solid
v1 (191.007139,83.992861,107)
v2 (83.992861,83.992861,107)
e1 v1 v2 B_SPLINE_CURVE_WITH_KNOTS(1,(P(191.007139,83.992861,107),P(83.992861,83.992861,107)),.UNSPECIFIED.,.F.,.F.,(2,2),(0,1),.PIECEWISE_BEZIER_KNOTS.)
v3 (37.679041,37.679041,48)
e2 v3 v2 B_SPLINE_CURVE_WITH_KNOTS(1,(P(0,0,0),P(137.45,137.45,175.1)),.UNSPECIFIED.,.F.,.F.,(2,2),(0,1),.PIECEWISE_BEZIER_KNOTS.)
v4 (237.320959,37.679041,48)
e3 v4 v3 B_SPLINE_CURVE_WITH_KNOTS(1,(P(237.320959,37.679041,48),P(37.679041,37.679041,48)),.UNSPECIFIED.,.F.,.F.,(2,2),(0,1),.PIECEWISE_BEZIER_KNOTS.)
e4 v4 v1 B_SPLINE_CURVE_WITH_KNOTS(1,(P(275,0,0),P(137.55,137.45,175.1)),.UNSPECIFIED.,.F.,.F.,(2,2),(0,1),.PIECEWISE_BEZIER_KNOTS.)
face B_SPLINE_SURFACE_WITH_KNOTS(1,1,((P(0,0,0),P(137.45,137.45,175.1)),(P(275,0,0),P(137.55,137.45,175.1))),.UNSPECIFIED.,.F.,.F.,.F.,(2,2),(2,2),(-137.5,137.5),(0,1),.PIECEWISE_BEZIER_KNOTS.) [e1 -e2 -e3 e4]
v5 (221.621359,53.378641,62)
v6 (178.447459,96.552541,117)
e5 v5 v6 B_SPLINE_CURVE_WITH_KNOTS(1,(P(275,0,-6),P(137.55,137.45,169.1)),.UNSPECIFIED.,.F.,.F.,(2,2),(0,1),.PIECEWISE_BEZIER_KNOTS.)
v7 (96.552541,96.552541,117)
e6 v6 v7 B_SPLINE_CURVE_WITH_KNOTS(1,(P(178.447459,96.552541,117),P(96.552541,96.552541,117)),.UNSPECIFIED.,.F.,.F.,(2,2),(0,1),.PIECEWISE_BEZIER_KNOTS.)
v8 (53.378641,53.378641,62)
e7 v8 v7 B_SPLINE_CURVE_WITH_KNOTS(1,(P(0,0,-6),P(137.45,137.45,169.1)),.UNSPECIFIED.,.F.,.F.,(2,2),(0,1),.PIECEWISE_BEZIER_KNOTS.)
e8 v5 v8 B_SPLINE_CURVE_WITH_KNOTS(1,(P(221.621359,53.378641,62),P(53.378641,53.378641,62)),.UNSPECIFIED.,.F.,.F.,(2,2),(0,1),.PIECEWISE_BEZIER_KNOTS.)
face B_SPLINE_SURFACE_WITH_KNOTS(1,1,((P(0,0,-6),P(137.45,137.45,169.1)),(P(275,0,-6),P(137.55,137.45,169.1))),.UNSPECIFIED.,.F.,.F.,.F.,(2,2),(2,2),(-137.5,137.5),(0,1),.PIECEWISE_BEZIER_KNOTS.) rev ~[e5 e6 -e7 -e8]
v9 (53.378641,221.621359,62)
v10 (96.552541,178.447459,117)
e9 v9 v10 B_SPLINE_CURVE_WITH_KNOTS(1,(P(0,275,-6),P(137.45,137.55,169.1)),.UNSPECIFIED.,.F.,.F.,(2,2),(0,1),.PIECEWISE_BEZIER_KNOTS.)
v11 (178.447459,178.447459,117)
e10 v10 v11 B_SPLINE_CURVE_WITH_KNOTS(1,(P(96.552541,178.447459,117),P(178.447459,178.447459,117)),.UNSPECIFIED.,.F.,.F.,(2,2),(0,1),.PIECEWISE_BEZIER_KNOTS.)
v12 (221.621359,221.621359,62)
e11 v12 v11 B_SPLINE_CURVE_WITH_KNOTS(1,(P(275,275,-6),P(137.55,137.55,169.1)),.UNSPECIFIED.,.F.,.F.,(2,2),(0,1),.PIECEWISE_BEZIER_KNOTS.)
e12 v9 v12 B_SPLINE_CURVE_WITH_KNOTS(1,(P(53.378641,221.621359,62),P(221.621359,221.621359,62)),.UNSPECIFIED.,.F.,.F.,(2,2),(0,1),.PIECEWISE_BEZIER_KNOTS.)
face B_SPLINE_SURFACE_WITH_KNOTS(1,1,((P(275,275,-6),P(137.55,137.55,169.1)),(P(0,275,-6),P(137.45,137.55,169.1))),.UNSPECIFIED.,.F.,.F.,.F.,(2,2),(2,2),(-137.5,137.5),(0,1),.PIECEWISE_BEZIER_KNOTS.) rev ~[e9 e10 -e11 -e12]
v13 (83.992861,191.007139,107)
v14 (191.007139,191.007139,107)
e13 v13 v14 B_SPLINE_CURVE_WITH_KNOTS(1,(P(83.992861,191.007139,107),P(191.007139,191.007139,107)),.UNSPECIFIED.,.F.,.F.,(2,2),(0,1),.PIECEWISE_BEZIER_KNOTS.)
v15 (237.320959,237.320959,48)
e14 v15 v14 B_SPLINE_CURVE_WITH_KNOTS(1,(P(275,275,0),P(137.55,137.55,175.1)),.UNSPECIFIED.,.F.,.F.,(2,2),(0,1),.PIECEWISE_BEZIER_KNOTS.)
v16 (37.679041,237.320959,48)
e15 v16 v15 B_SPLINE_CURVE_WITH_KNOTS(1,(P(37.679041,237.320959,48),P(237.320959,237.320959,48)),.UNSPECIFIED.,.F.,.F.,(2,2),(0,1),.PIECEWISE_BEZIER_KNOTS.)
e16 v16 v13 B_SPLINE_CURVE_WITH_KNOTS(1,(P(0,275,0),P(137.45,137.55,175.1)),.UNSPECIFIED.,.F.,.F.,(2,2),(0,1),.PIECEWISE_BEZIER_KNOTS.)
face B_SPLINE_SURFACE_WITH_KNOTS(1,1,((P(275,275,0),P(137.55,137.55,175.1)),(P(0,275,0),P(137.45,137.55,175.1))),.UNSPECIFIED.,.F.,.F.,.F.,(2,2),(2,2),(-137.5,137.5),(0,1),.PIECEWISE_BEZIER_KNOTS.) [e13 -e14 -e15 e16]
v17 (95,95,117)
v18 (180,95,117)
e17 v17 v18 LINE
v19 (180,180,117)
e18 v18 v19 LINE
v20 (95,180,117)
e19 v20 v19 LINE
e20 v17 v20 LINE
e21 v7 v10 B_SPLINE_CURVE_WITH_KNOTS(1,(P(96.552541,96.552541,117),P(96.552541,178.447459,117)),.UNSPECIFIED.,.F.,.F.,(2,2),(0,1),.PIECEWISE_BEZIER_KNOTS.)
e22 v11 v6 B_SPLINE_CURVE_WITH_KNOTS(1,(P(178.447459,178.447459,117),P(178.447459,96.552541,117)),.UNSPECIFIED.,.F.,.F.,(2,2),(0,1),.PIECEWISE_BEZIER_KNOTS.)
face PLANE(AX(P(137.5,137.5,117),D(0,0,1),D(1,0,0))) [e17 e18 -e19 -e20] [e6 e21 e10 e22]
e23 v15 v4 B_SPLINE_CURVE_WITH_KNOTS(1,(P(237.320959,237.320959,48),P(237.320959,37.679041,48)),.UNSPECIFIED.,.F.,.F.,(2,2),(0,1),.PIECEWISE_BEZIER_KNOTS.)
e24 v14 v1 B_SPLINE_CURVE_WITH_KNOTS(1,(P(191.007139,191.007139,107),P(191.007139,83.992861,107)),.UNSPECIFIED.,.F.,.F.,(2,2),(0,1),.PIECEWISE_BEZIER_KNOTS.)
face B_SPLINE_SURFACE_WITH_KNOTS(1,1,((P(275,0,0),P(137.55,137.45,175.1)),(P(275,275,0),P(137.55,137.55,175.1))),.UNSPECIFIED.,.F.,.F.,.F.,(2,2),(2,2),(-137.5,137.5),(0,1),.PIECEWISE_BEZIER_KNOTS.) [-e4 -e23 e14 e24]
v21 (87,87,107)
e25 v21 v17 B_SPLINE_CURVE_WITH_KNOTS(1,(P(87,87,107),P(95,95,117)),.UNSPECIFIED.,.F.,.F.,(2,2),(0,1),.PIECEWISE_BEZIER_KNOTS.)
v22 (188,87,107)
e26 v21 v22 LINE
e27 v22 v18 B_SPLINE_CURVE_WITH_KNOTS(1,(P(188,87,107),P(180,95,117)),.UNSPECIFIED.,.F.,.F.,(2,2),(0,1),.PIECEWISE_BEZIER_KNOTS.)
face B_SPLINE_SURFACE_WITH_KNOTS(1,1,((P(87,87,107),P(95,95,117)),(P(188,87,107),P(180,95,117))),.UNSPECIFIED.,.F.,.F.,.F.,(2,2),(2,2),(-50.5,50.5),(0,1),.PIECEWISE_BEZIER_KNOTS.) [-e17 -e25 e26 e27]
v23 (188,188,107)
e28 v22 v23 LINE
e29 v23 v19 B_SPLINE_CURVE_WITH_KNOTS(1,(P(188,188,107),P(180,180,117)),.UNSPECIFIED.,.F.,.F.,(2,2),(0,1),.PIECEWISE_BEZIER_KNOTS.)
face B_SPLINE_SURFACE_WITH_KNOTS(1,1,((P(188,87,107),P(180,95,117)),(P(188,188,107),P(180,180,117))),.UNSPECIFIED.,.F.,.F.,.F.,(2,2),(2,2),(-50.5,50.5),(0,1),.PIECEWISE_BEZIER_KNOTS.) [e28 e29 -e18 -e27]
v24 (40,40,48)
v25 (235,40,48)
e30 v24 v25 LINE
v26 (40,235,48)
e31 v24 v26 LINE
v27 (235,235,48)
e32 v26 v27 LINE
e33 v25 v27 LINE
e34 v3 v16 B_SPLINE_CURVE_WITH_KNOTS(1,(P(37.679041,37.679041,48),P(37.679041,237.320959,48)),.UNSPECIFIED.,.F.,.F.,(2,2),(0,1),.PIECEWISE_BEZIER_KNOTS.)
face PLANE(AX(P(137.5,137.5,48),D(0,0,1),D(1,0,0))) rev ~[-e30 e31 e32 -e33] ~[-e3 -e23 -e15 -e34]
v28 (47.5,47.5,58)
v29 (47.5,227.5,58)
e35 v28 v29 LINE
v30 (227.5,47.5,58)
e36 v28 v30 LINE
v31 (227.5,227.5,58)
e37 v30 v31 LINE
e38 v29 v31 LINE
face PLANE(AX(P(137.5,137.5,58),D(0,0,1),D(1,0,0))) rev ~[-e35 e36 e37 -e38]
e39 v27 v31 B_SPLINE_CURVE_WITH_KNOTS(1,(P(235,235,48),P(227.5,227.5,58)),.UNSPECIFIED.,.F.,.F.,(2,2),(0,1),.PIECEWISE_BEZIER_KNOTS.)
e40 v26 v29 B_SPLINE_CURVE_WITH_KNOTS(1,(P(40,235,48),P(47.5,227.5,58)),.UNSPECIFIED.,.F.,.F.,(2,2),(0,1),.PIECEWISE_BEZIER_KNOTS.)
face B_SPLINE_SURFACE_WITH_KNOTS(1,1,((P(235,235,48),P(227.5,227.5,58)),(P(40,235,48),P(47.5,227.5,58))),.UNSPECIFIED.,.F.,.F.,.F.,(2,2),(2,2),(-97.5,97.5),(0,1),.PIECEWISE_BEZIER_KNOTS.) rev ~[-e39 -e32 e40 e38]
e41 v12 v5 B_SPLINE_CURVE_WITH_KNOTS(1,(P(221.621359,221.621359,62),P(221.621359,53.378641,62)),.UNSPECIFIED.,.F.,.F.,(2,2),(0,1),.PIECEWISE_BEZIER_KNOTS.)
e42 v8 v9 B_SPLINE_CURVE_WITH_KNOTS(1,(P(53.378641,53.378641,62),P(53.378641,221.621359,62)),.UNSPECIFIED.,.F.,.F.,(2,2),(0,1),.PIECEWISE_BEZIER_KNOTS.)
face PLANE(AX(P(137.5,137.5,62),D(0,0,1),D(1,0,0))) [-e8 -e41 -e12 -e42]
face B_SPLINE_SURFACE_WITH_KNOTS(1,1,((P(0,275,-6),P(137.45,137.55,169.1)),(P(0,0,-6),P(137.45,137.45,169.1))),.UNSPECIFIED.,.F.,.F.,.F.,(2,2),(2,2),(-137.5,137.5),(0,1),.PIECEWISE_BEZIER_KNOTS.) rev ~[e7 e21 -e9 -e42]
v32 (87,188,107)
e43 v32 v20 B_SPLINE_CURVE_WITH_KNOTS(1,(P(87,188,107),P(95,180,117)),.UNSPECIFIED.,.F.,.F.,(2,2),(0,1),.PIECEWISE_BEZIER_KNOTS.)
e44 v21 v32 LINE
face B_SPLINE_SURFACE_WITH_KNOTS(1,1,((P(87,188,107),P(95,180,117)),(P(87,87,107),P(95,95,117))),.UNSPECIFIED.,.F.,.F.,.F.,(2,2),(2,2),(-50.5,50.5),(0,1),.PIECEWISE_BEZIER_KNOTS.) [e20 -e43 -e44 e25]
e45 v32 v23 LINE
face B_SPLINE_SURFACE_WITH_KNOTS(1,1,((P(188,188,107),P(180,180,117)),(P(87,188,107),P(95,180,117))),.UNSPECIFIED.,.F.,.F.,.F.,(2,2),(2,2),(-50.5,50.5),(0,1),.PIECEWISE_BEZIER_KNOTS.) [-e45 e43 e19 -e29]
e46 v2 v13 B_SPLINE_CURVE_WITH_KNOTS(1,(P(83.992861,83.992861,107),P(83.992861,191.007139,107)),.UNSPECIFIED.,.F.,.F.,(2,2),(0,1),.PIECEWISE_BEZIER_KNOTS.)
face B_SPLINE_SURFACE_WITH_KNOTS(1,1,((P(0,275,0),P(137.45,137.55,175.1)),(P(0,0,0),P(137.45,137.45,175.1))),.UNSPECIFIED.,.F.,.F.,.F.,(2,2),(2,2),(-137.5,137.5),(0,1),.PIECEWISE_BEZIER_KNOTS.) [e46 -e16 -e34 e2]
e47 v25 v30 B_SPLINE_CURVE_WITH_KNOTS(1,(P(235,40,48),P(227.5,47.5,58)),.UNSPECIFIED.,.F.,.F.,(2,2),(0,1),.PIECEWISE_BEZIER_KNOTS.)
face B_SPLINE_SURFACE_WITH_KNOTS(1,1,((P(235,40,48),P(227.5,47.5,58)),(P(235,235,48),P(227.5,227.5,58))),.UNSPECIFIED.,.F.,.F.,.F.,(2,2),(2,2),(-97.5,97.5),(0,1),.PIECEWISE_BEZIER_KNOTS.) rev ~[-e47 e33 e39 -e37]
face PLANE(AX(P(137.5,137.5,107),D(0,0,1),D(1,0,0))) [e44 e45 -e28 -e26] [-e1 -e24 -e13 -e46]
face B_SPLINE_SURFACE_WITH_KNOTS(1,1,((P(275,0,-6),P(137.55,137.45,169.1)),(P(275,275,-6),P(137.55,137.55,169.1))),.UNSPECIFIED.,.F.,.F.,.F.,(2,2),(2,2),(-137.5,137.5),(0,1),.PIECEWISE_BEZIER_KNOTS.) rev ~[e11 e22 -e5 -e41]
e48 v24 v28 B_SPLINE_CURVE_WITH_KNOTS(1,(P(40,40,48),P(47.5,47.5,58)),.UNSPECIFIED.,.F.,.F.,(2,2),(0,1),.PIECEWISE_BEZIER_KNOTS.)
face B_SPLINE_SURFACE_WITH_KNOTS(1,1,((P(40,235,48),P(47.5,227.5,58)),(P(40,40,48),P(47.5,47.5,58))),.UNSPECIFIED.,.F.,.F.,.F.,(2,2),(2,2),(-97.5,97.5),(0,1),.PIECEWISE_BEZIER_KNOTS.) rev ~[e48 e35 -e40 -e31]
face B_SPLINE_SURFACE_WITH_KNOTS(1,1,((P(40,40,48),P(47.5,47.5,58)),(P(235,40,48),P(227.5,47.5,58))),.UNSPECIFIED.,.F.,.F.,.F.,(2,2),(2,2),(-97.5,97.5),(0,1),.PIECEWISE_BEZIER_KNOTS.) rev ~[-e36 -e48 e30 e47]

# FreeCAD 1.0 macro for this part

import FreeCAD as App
import Part
import Sketcher

doc = App.newDocument("Part")
params = doc.addObject("Spreadsheet::Sheet", "Params")
for row, (alias, value) in enumerate([
    ("sketch1_width", "275 mm"),
    ("pad1_length", "59 mm"),
    ("sketch2_width", "101 mm"),
    ("sketch3_width", "85 mm"),
    ("sketch4_width", "275 mm"),
    ("pad2_length", "52 mm"),
    ("sketch5_width", "275 mm"),
    ("sketch6_width", "0.1 mm"),
    ("sketch7_width", "275 mm"),
    ("pad3_length", "47 mm"),
    ("sketch8_width", "195 mm"),
    ("sketch9_width", "180 mm"),
    ("sketch10_width", "275 mm"),
    ("pad4_length", "52 mm"),
    ("sketch11_width", "275 mm"),
    ("sketch12_width", "0.1 mm"),
    ("sketch13_width", "275 mm"),
    ("sketch14_width", "0.1 mm"),
    ("sketch15_width", "275 mm"),
    ("pad5_length", "57 mm"),
    ("sketch16_width", "275 mm"),
    ("pad6_length", "55 mm"),
    ("sketch17_width", "275 mm"),
    ("sketch18_width", "0.1 mm"),
    ("sketch19_width", "275 mm"),
    ("sketch20_width", "0.1 mm"),
    ("sketch21_width", "275 mm"),
    ("pad7_length", "70 mm"),
], start=1):
    params.set(f"A{row}", alias)
    params.set(f"B{row}", "=" + value)
    params.setAlias(f"B{row}", alias)

body = doc.addObject("PartDesign::Body", "Body")

# Sketch on XY plane
sketch1 = doc.addObject("Sketcher::SketchObject", "Sketch")
body.addObject(sketch1)
sketch1.AttachmentSupport = (doc.XY_Plane, [""])
sketch1.MapMode = "FlatFace"
sketch1.AttachmentOffset = App.Placement(App.Vector(0, 0, 48), App.Rotation())
sketch1.addGeometry([
    Part.LineSegment(App.Vector(0, 275, 0), App.Vector(0, 0, 0)),
    Part.LineSegment(App.Vector(0, 0, 0), App.Vector(275, 0, 0)),
    Part.LineSegment(App.Vector(275, 0, 0), App.Vector(275, 275, 0)),
    Part.LineSegment(App.Vector(275, 275, 0), App.Vector(0, 275, 0)),
], False)
sketch1.addConstraint([
    Sketcher.Constraint("Coincident", 0, 2, 1, 1),
    Sketcher.Constraint("Coincident", 1, 2, 2, 1),
    Sketcher.Constraint("Coincident", 2, 2, 3, 1),
    Sketcher.Constraint("Coincident", 3, 2, 0, 1),
    Sketcher.Constraint("Vertical", 0),
    Sketcher.Constraint("Horizontal", 1),
    Sketcher.Constraint("Vertical", 2),
    Sketcher.Constraint("Horizontal", 3),
    Sketcher.Constraint("Coincident", 0, 2, -1, 1),
    Sketcher.Constraint("Equal", 3, 0),
    Sketcher.Constraint("DistanceX", 1, 1, 1, 2, 275.0),
])
sketch1.setExpression("Constraints[10]", "Params.sketch1_width")
pad1 = doc.addObject("PartDesign::Pad", "Pad")
body.addObject(pad1)
pad1.Profile = sketch1
pad1.setExpression("Length", "Params.pad1_length")
body2 = doc.addObject("PartDesign::Body", "Body001")

# Sketch on XY plane
sketch2 = doc.addObject("Sketcher::SketchObject", "Sketch001")
body2.addObject(sketch2)
sketch2.AttachmentSupport = (doc.getObject("XY_Plane001"), [""])
sketch2.MapMode = "FlatFace"
sketch2.AttachmentOffset = App.Placement(App.Vector(0, 0, 107), App.Rotation())
sketch2.addGeometry([
    Part.LineSegment(App.Vector(87, 188, 0), App.Vector(87, 87, 0)),
    Part.LineSegment(App.Vector(87, 87, 0), App.Vector(188, 87, 0)),
    Part.LineSegment(App.Vector(188, 87, 0), App.Vector(188, 188, 0)),
    Part.LineSegment(App.Vector(188, 188, 0), App.Vector(87, 188, 0)),
], False)
sketch2.addConstraint([
    Sketcher.Constraint("Coincident", 0, 2, 1, 1),
    Sketcher.Constraint("Coincident", 1, 2, 2, 1),
    Sketcher.Constraint("Coincident", 2, 2, 3, 1),
    Sketcher.Constraint("Coincident", 3, 2, 0, 1),
    Sketcher.Constraint("Vertical", 0),
    Sketcher.Constraint("Horizontal", 1),
    Sketcher.Constraint("Vertical", 2),
    Sketcher.Constraint("Horizontal", 3),
    Sketcher.Constraint("Equal", 3, 0),
    Sketcher.Constraint("DistanceX", 1, 1, 1, 2, 101.0),
    Sketcher.Constraint("DistanceX", -1, 1, 0, 2, 87.0),
    Sketcher.Constraint("DistanceY", -1, 1, 0, 2, 87.0),
])
sketch2.setExpression("Constraints[9]", "Params.sketch2_width")

# Sketch on XY plane
sketch3 = doc.addObject("Sketcher::SketchObject", "Sketch002")
body2.addObject(sketch3)
sketch3.AttachmentSupport = (doc.getObject("XY_Plane001"), [""])
sketch3.MapMode = "FlatFace"
sketch3.AttachmentOffset = App.Placement(App.Vector(0, 0, 117), App.Rotation())
sketch3.addGeometry([
    Part.LineSegment(App.Vector(95, 180, 0), App.Vector(95, 95, 0)),
    Part.LineSegment(App.Vector(95, 95, 0), App.Vector(180, 95, 0)),
    Part.LineSegment(App.Vector(180, 95, 0), App.Vector(180, 180, 0)),
    Part.LineSegment(App.Vector(180, 180, 0), App.Vector(95, 180, 0)),
], False)
sketch3.addConstraint([
    Sketcher.Constraint("Coincident", 0, 2, 1, 1),
    Sketcher.Constraint("Coincident", 1, 2, 2, 1),
    Sketcher.Constraint("Coincident", 2, 2, 3, 1),
    Sketcher.Constraint("Coincident", 3, 2, 0, 1),
    Sketcher.Constraint("Vertical", 0),
    Sketcher.Constraint("Horizontal", 1),
    Sketcher.Constraint("Vertical", 2),
    Sketcher.Constraint("Horizontal", 3),
    Sketcher.Constraint("Equal", 3, 0),
    Sketcher.Constraint("DistanceX", 1, 1, 1, 2, 85.0),
    Sketcher.Constraint("DistanceX", -1, 1, 0, 2, 95.0),
    Sketcher.Constraint("DistanceY", -1, 1, 0, 2, 95.0),
])
sketch3.setExpression("Constraints[9]", "Params.sketch3_width")

additiveloft = doc.addObject("PartDesign::AdditiveLoft", "AdditiveLoft")
body2.addObject(additiveloft)
additiveloft.Profile = sketch2
additiveloft.Sections = [sketch3]
doc.recompute()

boolean = doc.addObject("PartDesign::Boolean", "Boolean")
body2.addObject(boolean)
boolean.Type = "Fuse"
boolean.addObjects([body])
body3 = doc.addObject("PartDesign::Body", "Body002")

# Sketch on XY plane
sketch4 = doc.addObject("Sketcher::SketchObject", "Sketch003")
body3.addObject(sketch4)
sketch4.AttachmentSupport = (doc.getObject("XY_Plane002"), [""])
sketch4.MapMode = "FlatFace"
sketch4.AttachmentOffset = App.Placement(App.Vector(0, 0, 5), App.Rotation())
sketch4.addGeometry([
    Part.LineSegment(App.Vector(0, 275, 0), App.Vector(0, 0, 0)),
    Part.LineSegment(App.Vector(0, 0, 0), App.Vector(275, 0, 0)),
    Part.LineSegment(App.Vector(275, 0, 0), App.Vector(275, 275, 0)),
    Part.LineSegment(App.Vector(275, 275, 0), App.Vector(0, 275, 0)),
], False)
sketch4.addConstraint([
    Sketcher.Constraint("Coincident", 0, 2, 1, 1),
    Sketcher.Constraint("Coincident", 1, 2, 2, 1),
    Sketcher.Constraint("Coincident", 2, 2, 3, 1),
    Sketcher.Constraint("Coincident", 3, 2, 0, 1),
    Sketcher.Constraint("Vertical", 0),
    Sketcher.Constraint("Horizontal", 1),
    Sketcher.Constraint("Vertical", 2),
    Sketcher.Constraint("Horizontal", 3),
    Sketcher.Constraint("Coincident", 0, 2, -1, 1),
    Sketcher.Constraint("Equal", 3, 0),
    Sketcher.Constraint("DistanceX", 1, 1, 1, 2, 275.0),
])
sketch4.setExpression("Constraints[10]", "Params.sketch4_width")
pad2 = doc.addObject("PartDesign::Pad", "Pad001")
body3.addObject(pad2)
pad2.Profile = sketch4
pad2.setExpression("Length", "Params.pad2_length")
body4 = doc.addObject("PartDesign::Body", "Body003")

# Sketch on XY plane
sketch5 = doc.addObject("Sketcher::SketchObject", "Sketch004")
body4.addObject(sketch5)
sketch5.AttachmentSupport = (doc.getObject("XY_Plane003"), [""])
sketch5.MapMode = "FlatFace"
sketch5.addGeometry([
    Part.LineSegment(App.Vector(0, 275, 0), App.Vector(0, 0, 0)),
    Part.LineSegment(App.Vector(0, 0, 0), App.Vector(275, 0, 0)),
    Part.LineSegment(App.Vector(275, 0, 0), App.Vector(275, 275, 0)),
    Part.LineSegment(App.Vector(275, 275, 0), App.Vector(0, 275, 0)),
], False)
sketch5.addConstraint([
    Sketcher.Constraint("Coincident", 0, 2, 1, 1),
    Sketcher.Constraint("Coincident", 1, 2, 2, 1),
    Sketcher.Constraint("Coincident", 2, 2, 3, 1),
    Sketcher.Constraint("Coincident", 3, 2, 0, 1),
    Sketcher.Constraint("Vertical", 0),
    Sketcher.Constraint("Horizontal", 1),
    Sketcher.Constraint("Vertical", 2),
    Sketcher.Constraint("Horizontal", 3),
    Sketcher.Constraint("Coincident", 0, 2, -1, 1),
    Sketcher.Constraint("Equal", 3, 0),
    Sketcher.Constraint("DistanceX", 1, 1, 1, 2, 275.0),
])
sketch5.setExpression("Constraints[10]", "Params.sketch5_width")

# Sketch on XY plane
sketch6 = doc.addObject("Sketcher::SketchObject", "Sketch005")
body4.addObject(sketch6)
sketch6.AttachmentSupport = (doc.getObject("XY_Plane003"), [""])
sketch6.MapMode = "FlatFace"
sketch6.AttachmentOffset = App.Placement(App.Vector(0, 0, 175.1), App.Rotation())
sketch6.addGeometry([
    Part.LineSegment(App.Vector(137.45, 137.55, 0), App.Vector(137.45, 137.45, 0)),
    Part.LineSegment(App.Vector(137.45, 137.45, 0), App.Vector(137.55, 137.45, 0)),
    Part.LineSegment(App.Vector(137.55, 137.45, 0), App.Vector(137.55, 137.55, 0)),
    Part.LineSegment(App.Vector(137.55, 137.55, 0), App.Vector(137.45, 137.55, 0)),
], False)
sketch6.addConstraint([
    Sketcher.Constraint("Coincident", 0, 2, 1, 1),
    Sketcher.Constraint("Coincident", 1, 2, 2, 1),
    Sketcher.Constraint("Coincident", 2, 2, 3, 1),
    Sketcher.Constraint("Coincident", 3, 2, 0, 1),
    Sketcher.Constraint("Vertical", 0),
    Sketcher.Constraint("Horizontal", 1),
    Sketcher.Constraint("Vertical", 2),
    Sketcher.Constraint("Horizontal", 3),
    Sketcher.Constraint("Equal", 3, 0),
    Sketcher.Constraint("DistanceX", 1, 1, 1, 2, 0.1),
    Sketcher.Constraint("DistanceX", -1, 1, 0, 2, 137.45),
    Sketcher.Constraint("DistanceY", -1, 1, 0, 2, 137.45),
])
sketch6.setExpression("Constraints[9]", "Params.sketch6_width")

additiveloft2 = doc.addObject("PartDesign::AdditiveLoft", "AdditiveLoft001")
body4.addObject(additiveloft2)
additiveloft2.Profile = sketch5
additiveloft2.Sections = [sketch6]
body5 = doc.addObject("PartDesign::Body", "Body004")
doc.recompute()

body4.Placement = App.Placement(App.Vector(0, 0, -6), App.Rotation(App.Vector(0, 0, 1), 0))
boolean2 = doc.addObject("PartDesign::Boolean", "Boolean001")
body5.addObject(boolean2)
boolean2.Type = "Fuse"
boolean2.addObjects([body4])
doc.recompute()

boolean3 = doc.addObject("PartDesign::Boolean", "Boolean002")
body5.addObject(boolean3)
boolean3.Type = "Common"
boolean3.addObjects([body3])
body6 = doc.addObject("PartDesign::Body", "Body005")

# Sketch on XY plane
sketch7 = doc.addObject("Sketcher::SketchObject", "Sketch006")
body6.addObject(sketch7)
sketch7.AttachmentSupport = (doc.getObject("XY_Plane005"), [""])
sketch7.MapMode = "FlatFace"
sketch7.addGeometry([
    Part.LineSegment(App.Vector(0, 275, 0), App.Vector(0, 0, 0)),
    Part.LineSegment(App.Vector(0, 0, 0), App.Vector(275, 0, 0)),
    Part.LineSegment(App.Vector(275, 0, 0), App.Vector(275, 275, 0)),
    Part.LineSegment(App.Vector(275, 275, 0), App.Vector(0, 275, 0)),
], False)
sketch7.addConstraint([
    Sketcher.Constraint("Coincident", 0, 2, 1, 1),
    Sketcher.Constraint("Coincident", 1, 2, 2, 1),
    Sketcher.Constraint("Coincident", 2, 2, 3, 1),
    Sketcher.Constraint("Coincident", 3, 2, 0, 1),
    Sketcher.Constraint("Vertical", 0),
    Sketcher.Constraint("Horizontal", 1),
    Sketcher.Constraint("Vertical", 2),
    Sketcher.Constraint("Horizontal", 3),
    Sketcher.Constraint("Coincident", 0, 2, -1, 1),
    Sketcher.Constraint("Equal", 3, 0),
    Sketcher.Constraint("DistanceX", 1, 1, 1, 2, 275.0),
])
sketch7.setExpression("Constraints[10]", "Params.sketch7_width")
pad3 = doc.addObject("PartDesign::Pad", "Pad002")
body6.addObject(pad3)
pad3.Profile = sketch7
pad3.setExpression("Length", "Params.pad3_length")
body7 = doc.addObject("PartDesign::Body", "Body006")

# Sketch on XY plane
sketch8 = doc.addObject("Sketcher::SketchObject", "Sketch007")
body7.addObject(sketch8)
sketch8.AttachmentSupport = (doc.getObject("XY_Plane006"), [""])
sketch8.MapMode = "FlatFace"
sketch8.AttachmentOffset = App.Placement(App.Vector(0, 0, 47), App.Rotation())
sketch8.addGeometry([
    Part.LineSegment(App.Vector(40, 235, 0), App.Vector(40, 40, 0)),
    Part.LineSegment(App.Vector(40, 40, 0), App.Vector(235, 40, 0)),
    Part.LineSegment(App.Vector(235, 40, 0), App.Vector(235, 235, 0)),
    Part.LineSegment(App.Vector(235, 235, 0), App.Vector(40, 235, 0)),
], False)
sketch8.addConstraint([
    Sketcher.Constraint("Coincident", 0, 2, 1, 1),
    Sketcher.Constraint("Coincident", 1, 2, 2, 1),
    Sketcher.Constraint("Coincident", 2, 2, 3, 1),
    Sketcher.Constraint("Coincident", 3, 2, 0, 1),
    Sketcher.Constraint("Vertical", 0),
    Sketcher.Constraint("Horizontal", 1),
    Sketcher.Constraint("Vertical", 2),
    Sketcher.Constraint("Horizontal", 3),
    Sketcher.Constraint("Equal", 3, 0),
    Sketcher.Constraint("DistanceX", 1, 1, 1, 2, 195.0),
    Sketcher.Constraint("DistanceX", -1, 1, 0, 2, 40.0),
    Sketcher.Constraint("DistanceY", -1, 1, 0, 2, 40.0),
])
sketch8.setExpression("Constraints[9]", "Params.sketch8_width")

# Sketch on XY plane
sketch9 = doc.addObject("Sketcher::SketchObject", "Sketch008")
body7.addObject(sketch9)
sketch9.AttachmentSupport = (doc.getObject("XY_Plane006"), [""])
sketch9.MapMode = "FlatFace"
sketch9.AttachmentOffset = App.Placement(App.Vector(0, 0, 57), App.Rotation())
sketch9.addGeometry([
    Part.LineSegment(App.Vector(47.5, 227.5, 0), App.Vector(47.5, 47.5, 0)),
    Part.LineSegment(App.Vector(47.5, 47.5, 0), App.Vector(227.5, 47.5, 0)),
    Part.LineSegment(App.Vector(227.5, 47.5, 0), App.Vector(227.5, 227.5, 0)),
    Part.LineSegment(App.Vector(227.5, 227.5, 0), App.Vector(47.5, 227.5, 0)),
], False)
sketch9.addConstraint([
    Sketcher.Constraint("Coincident", 0, 2, 1, 1),
    Sketcher.Constraint("Coincident", 1, 2, 2, 1),
    Sketcher.Constraint("Coincident", 2, 2, 3, 1),
    Sketcher.Constraint("Coincident", 3, 2, 0, 1),
    Sketcher.Constraint("Vertical", 0),
    Sketcher.Constraint("Horizontal", 1),
    Sketcher.Constraint("Vertical", 2),
    Sketcher.Constraint("Horizontal", 3),
    Sketcher.Constraint("Equal", 3, 0),
    Sketcher.Constraint("DistanceX", 1, 1, 1, 2, 180.0),
    Sketcher.Constraint("DistanceX", -1, 1, 0, 2, 47.5),
    Sketcher.Constraint("DistanceY", -1, 1, 0, 2, 47.5),
])
sketch9.setExpression("Constraints[9]", "Params.sketch9_width")

additiveloft3 = doc.addObject("PartDesign::AdditiveLoft", "AdditiveLoft002")
body7.addObject(additiveloft3)
additiveloft3.Profile = sketch8
additiveloft3.Sections = [sketch9]
doc.recompute()

boolean4 = doc.addObject("PartDesign::Boolean", "Boolean003")
body7.addObject(boolean4)
boolean4.Type = "Fuse"
boolean4.addObjects([body6])
body8 = doc.addObject("PartDesign::Body", "Body007")

# Sketch on XY plane
sketch10 = doc.addObject("Sketcher::SketchObject", "Sketch009")
body8.addObject(sketch10)
sketch10.AttachmentSupport = (doc.getObject("XY_Plane007"), [""])
sketch10.MapMode = "FlatFace"
sketch10.AttachmentOffset = App.Placement(App.Vector(0, 0, 5), App.Rotation())
sketch10.addGeometry([
    Part.LineSegment(App.Vector(0, 275, 0), App.Vector(0, 0, 0)),
    Part.LineSegment(App.Vector(0, 0, 0), App.Vector(275, 0, 0)),
    Part.LineSegment(App.Vector(275, 0, 0), App.Vector(275, 275, 0)),
    Part.LineSegment(App.Vector(275, 275, 0), App.Vector(0, 275, 0)),
], False)
sketch10.addConstraint([
    Sketcher.Constraint("Coincident", 0, 2, 1, 1),
    Sketcher.Constraint("Coincident", 1, 2, 2, 1),
    Sketcher.Constraint("Coincident", 2, 2, 3, 1),
    Sketcher.Constraint("Coincident", 3, 2, 0, 1),
    Sketcher.Constraint("Vertical", 0),
    Sketcher.Constraint("Horizontal", 1),
    Sketcher.Constraint("Vertical", 2),
    Sketcher.Constraint("Horizontal", 3),
    Sketcher.Constraint("Coincident", 0, 2, -1, 1),
    Sketcher.Constraint("Equal", 3, 0),
    Sketcher.Constraint("DistanceX", 1, 1, 1, 2, 275.0),
])
sketch10.setExpression("Constraints[10]", "Params.sketch10_width")
pad4 = doc.addObject("PartDesign::Pad", "Pad003")
body8.addObject(pad4)
pad4.Profile = sketch10
pad4.setExpression("Length", "Params.pad4_length")
body9 = doc.addObject("PartDesign::Body", "Body008")

# Sketch on XY plane
sketch11 = doc.addObject("Sketcher::SketchObject", "Sketch010")
body9.addObject(sketch11)
sketch11.AttachmentSupport = (doc.getObject("XY_Plane008"), [""])
sketch11.MapMode = "FlatFace"
sketch11.addGeometry([
    Part.LineSegment(App.Vector(0, 275, 0), App.Vector(0, 0, 0)),
    Part.LineSegment(App.Vector(0, 0, 0), App.Vector(275, 0, 0)),
    Part.LineSegment(App.Vector(275, 0, 0), App.Vector(275, 275, 0)),
    Part.LineSegment(App.Vector(275, 275, 0), App.Vector(0, 275, 0)),
], False)
sketch11.addConstraint([
    Sketcher.Constraint("Coincident", 0, 2, 1, 1),
    Sketcher.Constraint("Coincident", 1, 2, 2, 1),
    Sketcher.Constraint("Coincident", 2, 2, 3, 1),
    Sketcher.Constraint("Coincident", 3, 2, 0, 1),
    Sketcher.Constraint("Vertical", 0),
    Sketcher.Constraint("Horizontal", 1),
    Sketcher.Constraint("Vertical", 2),
    Sketcher.Constraint("Horizontal", 3),
    Sketcher.Constraint("Coincident", 0, 2, -1, 1),
    Sketcher.Constraint("Equal", 3, 0),
    Sketcher.Constraint("DistanceX", 1, 1, 1, 2, 275.0),
])
sketch11.setExpression("Constraints[10]", "Params.sketch11_width")

# Sketch on XY plane
sketch12 = doc.addObject("Sketcher::SketchObject", "Sketch011")
body9.addObject(sketch12)
sketch12.AttachmentSupport = (doc.getObject("XY_Plane008"), [""])
sketch12.MapMode = "FlatFace"
sketch12.AttachmentOffset = App.Placement(App.Vector(0, 0, 175.1), App.Rotation())
sketch12.addGeometry([
    Part.LineSegment(App.Vector(137.45, 137.55, 0), App.Vector(137.45, 137.45, 0)),
    Part.LineSegment(App.Vector(137.45, 137.45, 0), App.Vector(137.55, 137.45, 0)),
    Part.LineSegment(App.Vector(137.55, 137.45, 0), App.Vector(137.55, 137.55, 0)),
    Part.LineSegment(App.Vector(137.55, 137.55, 0), App.Vector(137.45, 137.55, 0)),
], False)
sketch12.addConstraint([
    Sketcher.Constraint("Coincident", 0, 2, 1, 1),
    Sketcher.Constraint("Coincident", 1, 2, 2, 1),
    Sketcher.Constraint("Coincident", 2, 2, 3, 1),
    Sketcher.Constraint("Coincident", 3, 2, 0, 1),
    Sketcher.Constraint("Vertical", 0),
    Sketcher.Constraint("Horizontal", 1),
    Sketcher.Constraint("Vertical", 2),
    Sketcher.Constraint("Horizontal", 3),
    Sketcher.Constraint("Equal", 3, 0),
    Sketcher.Constraint("DistanceX", 1, 1, 1, 2, 0.1),
    Sketcher.Constraint("DistanceX", -1, 1, 0, 2, 137.45),
    Sketcher.Constraint("DistanceY", -1, 1, 0, 2, 137.45),
])
sketch12.setExpression("Constraints[9]", "Params.sketch12_width")

additiveloft4 = doc.addObject("PartDesign::AdditiveLoft", "AdditiveLoft003")
body9.addObject(additiveloft4)
additiveloft4.Profile = sketch11
additiveloft4.Sections = [sketch12]
body10 = doc.addObject("PartDesign::Body", "Body009")
doc.recompute()

body9.Placement = App.Placement(App.Vector(0, 0, -6), App.Rotation(App.Vector(0, 0, 1), 0))
boolean5 = doc.addObject("PartDesign::Boolean", "Boolean004")
body10.addObject(boolean5)
boolean5.Type = "Fuse"
boolean5.addObjects([body9])
doc.recompute()

boolean6 = doc.addObject("PartDesign::Boolean", "Boolean005")
body10.addObject(boolean6)
boolean6.Type = "Common"
boolean6.addObjects([body8])
body11 = doc.addObject("PartDesign::Body", "Body010")

# Sketch on XY plane
sketch13 = doc.addObject("Sketcher::SketchObject", "Sketch012")
body11.addObject(sketch13)
sketch13.AttachmentSupport = (doc.getObject("XY_Plane010"), [""])
sketch13.MapMode = "FlatFace"
sketch13.addGeometry([
    Part.LineSegment(App.Vector(0, 275, 0), App.Vector(0, 0, 0)),
    Part.LineSegment(App.Vector(0, 0, 0), App.Vector(275, 0, 0)),
    Part.LineSegment(App.Vector(275, 0, 0), App.Vector(275, 275, 0)),
    Part.LineSegment(App.Vector(275, 275, 0), App.Vector(0, 275, 0)),
], False)
sketch13.addConstraint([
    Sketcher.Constraint("Coincident", 0, 2, 1, 1),
    Sketcher.Constraint("Coincident", 1, 2, 2, 1),
    Sketcher.Constraint("Coincident", 2, 2, 3, 1),
    Sketcher.Constraint("Coincident", 3, 2, 0, 1),
    Sketcher.Constraint("Vertical", 0),
    Sketcher.Constraint("Horizontal", 1),
    Sketcher.Constraint("Vertical", 2),
    Sketcher.Constraint("Horizontal", 3),
    Sketcher.Constraint("Coincident", 0, 2, -1, 1),
    Sketcher.Constraint("Equal", 3, 0),
    Sketcher.Constraint("DistanceX", 1, 1, 1, 2, 275.0),
])
sketch13.setExpression("Constraints[10]", "Params.sketch13_width")

# Sketch on XY plane
sketch14 = doc.addObject("Sketcher::SketchObject", "Sketch013")
body11.addObject(sketch14)
sketch14.AttachmentSupport = (doc.getObject("XY_Plane010"), [""])
sketch14.MapMode = "FlatFace"
sketch14.AttachmentOffset = App.Placement(App.Vector(0, 0, 175.1), App.Rotation())
sketch14.addGeometry([
    Part.LineSegment(App.Vector(137.45, 137.55, 0), App.Vector(137.45, 137.45, 0)),
    Part.LineSegment(App.Vector(137.45, 137.45, 0), App.Vector(137.55, 137.45, 0)),
    Part.LineSegment(App.Vector(137.55, 137.45, 0), App.Vector(137.55, 137.55, 0)),
    Part.LineSegment(App.Vector(137.55, 137.55, 0), App.Vector(137.45, 137.55, 0)),
], False)
sketch14.addConstraint([
    Sketcher.Constraint("Coincident", 0, 2, 1, 1),
    Sketcher.Constraint("Coincident", 1, 2, 2, 1),
    Sketcher.Constraint("Coincident", 2, 2, 3, 1),
    Sketcher.Constraint("Coincident", 3, 2, 0, 1),
    Sketcher.Constraint("Vertical", 0),
    Sketcher.Constraint("Horizontal", 1),
    Sketcher.Constraint("Vertical", 2),
    Sketcher.Constraint("Horizontal", 3),
    Sketcher.Constraint("Equal", 3, 0),
    Sketcher.Constraint("DistanceX", 1, 1, 1, 2, 0.1),
    Sketcher.Constraint("DistanceX", -1, 1, 0, 2, 137.45),
    Sketcher.Constraint("DistanceY", -1, 1, 0, 2, 137.45),
])
sketch14.setExpression("Constraints[9]", "Params.sketch14_width")

additiveloft5 = doc.addObject("PartDesign::AdditiveLoft", "AdditiveLoft004")
body11.addObject(additiveloft5)
additiveloft5.Profile = sketch13
additiveloft5.Sections = [sketch14]
body12 = doc.addObject("PartDesign::Body", "Body011")

# Sketch on XY plane
sketch15 = doc.addObject("Sketcher::SketchObject", "Sketch014")
body12.addObject(sketch15)
sketch15.AttachmentSupport = (doc.getObject("XY_Plane011"), [""])
sketch15.MapMode = "FlatFace"
sketch15.addGeometry([
    Part.LineSegment(App.Vector(0, 275, 0), App.Vector(0, 0, 0)),
    Part.LineSegment(App.Vector(0, 0, 0), App.Vector(275, 0, 0)),
    Part.LineSegment(App.Vector(275, 0, 0), App.Vector(275, 275, 0)),
    Part.LineSegment(App.Vector(275, 275, 0), App.Vector(0, 275, 0)),
], False)
sketch15.addConstraint([
    Sketcher.Constraint("Coincident", 0, 2, 1, 1),
    Sketcher.Constraint("Coincident", 1, 2, 2, 1),
    Sketcher.Constraint("Coincident", 2, 2, 3, 1),
    Sketcher.Constraint("Coincident", 3, 2, 0, 1),
    Sketcher.Constraint("Vertical", 0),
    Sketcher.Constraint("Horizontal", 1),
    Sketcher.Constraint("Vertical", 2),
    Sketcher.Constraint("Horizontal", 3),
    Sketcher.Constraint("Coincident", 0, 2, -1, 1),
    Sketcher.Constraint("Equal", 3, 0),
    Sketcher.Constraint("DistanceX", 1, 1, 1, 2, 275.0),
])
sketch15.setExpression("Constraints[10]", "Params.sketch15_width")
pad5 = doc.addObject("PartDesign::Pad", "Pad004")
body12.addObject(pad5)
pad5.Profile = sketch15
pad5.setExpression("Length", "Params.pad5_length")
doc.recompute()

boolean7 = doc.addObject("PartDesign::Boolean", "Boolean006")
body12.addObject(boolean7)
boolean7.Type = "Common"
boolean7.addObjects([body11])
doc.recompute()

boolean8 = doc.addObject("PartDesign::Boolean", "Boolean007")
body12.addObject(boolean8)
boolean8.Type = "Cut"
boolean8.addObjects([body10])
doc.recompute()

boolean9 = doc.addObject("PartDesign::Boolean", "Boolean008")
body12.addObject(boolean9)
boolean9.Type = "Common"
boolean9.addObjects([body7])
doc.recompute()

boolean10 = doc.addObject("PartDesign::Boolean", "Boolean009")
body12.addObject(boolean10)
boolean10.Type = "Fuse"
boolean10.addObjects([body5])
body13 = doc.addObject("PartDesign::Body", "Body012")
doc.recompute()

body12.Placement = App.Placement(App.Vector(0, 0, 1), App.Rotation(App.Vector(0, 0, 1), 0))
boolean11 = doc.addObject("PartDesign::Boolean", "Boolean010")
body13.addObject(boolean11)
boolean11.Type = "Fuse"
boolean11.addObjects([body12])
body14 = doc.addObject("PartDesign::Body", "Body013")

# Sketch on XY plane
sketch16 = doc.addObject("Sketcher::SketchObject", "Sketch015")
body14.addObject(sketch16)
sketch16.AttachmentSupport = (doc.getObject("XY_Plane013"), [""])
sketch16.MapMode = "FlatFace"
sketch16.AttachmentOffset = App.Placement(App.Vector(0, 0, 62), App.Rotation())
sketch16.addGeometry([
    Part.LineSegment(App.Vector(0, 275, 0), App.Vector(0, 0, 0)),
    Part.LineSegment(App.Vector(0, 0, 0), App.Vector(275, 0, 0)),
    Part.LineSegment(App.Vector(275, 0, 0), App.Vector(275, 275, 0)),
    Part.LineSegment(App.Vector(275, 275, 0), App.Vector(0, 275, 0)),
], False)
sketch16.addConstraint([
    Sketcher.Constraint("Coincident", 0, 2, 1, 1),
    Sketcher.Constraint("Coincident", 1, 2, 2, 1),
    Sketcher.Constraint("Coincident", 2, 2, 3, 1),
    Sketcher.Constraint("Coincident", 3, 2, 0, 1),
    Sketcher.Constraint("Vertical", 0),
    Sketcher.Constraint("Horizontal", 1),
    Sketcher.Constraint("Vertical", 2),
    Sketcher.Constraint("Horizontal", 3),
    Sketcher.Constraint("Coincident", 0, 2, -1, 1),
    Sketcher.Constraint("Equal", 3, 0),
    Sketcher.Constraint("DistanceX", 1, 1, 1, 2, 275.0),
])
sketch16.setExpression("Constraints[10]", "Params.sketch16_width")
pad6 = doc.addObject("PartDesign::Pad", "Pad005")
body14.addObject(pad6)
pad6.Profile = sketch16
pad6.setExpression("Length", "Params.pad6_length")
body15 = doc.addObject("PartDesign::Body", "Body014")

# Sketch on XY plane
sketch17 = doc.addObject("Sketcher::SketchObject", "Sketch016")
body15.addObject(sketch17)
sketch17.AttachmentSupport = (doc.getObject("XY_Plane014"), [""])
sketch17.MapMode = "FlatFace"
sketch17.addGeometry([
    Part.LineSegment(App.Vector(0, 275, 0), App.Vector(0, 0, 0)),
    Part.LineSegment(App.Vector(0, 0, 0), App.Vector(275, 0, 0)),
    Part.LineSegment(App.Vector(275, 0, 0), App.Vector(275, 275, 0)),
    Part.LineSegment(App.Vector(275, 275, 0), App.Vector(0, 275, 0)),
], False)
sketch17.addConstraint([
    Sketcher.Constraint("Coincident", 0, 2, 1, 1),
    Sketcher.Constraint("Coincident", 1, 2, 2, 1),
    Sketcher.Constraint("Coincident", 2, 2, 3, 1),
    Sketcher.Constraint("Coincident", 3, 2, 0, 1),
    Sketcher.Constraint("Vertical", 0),
    Sketcher.Constraint("Horizontal", 1),
    Sketcher.Constraint("Vertical", 2),
    Sketcher.Constraint("Horizontal", 3),
    Sketcher.Constraint("Coincident", 0, 2, -1, 1),
    Sketcher.Constraint("Equal", 3, 0),
    Sketcher.Constraint("DistanceX", 1, 1, 1, 2, 275.0),
])
sketch17.setExpression("Constraints[10]", "Params.sketch17_width")

# Sketch on XY plane
sketch18 = doc.addObject("Sketcher::SketchObject", "Sketch017")
body15.addObject(sketch18)
sketch18.AttachmentSupport = (doc.getObject("XY_Plane014"), [""])
sketch18.MapMode = "FlatFace"
sketch18.AttachmentOffset = App.Placement(App.Vector(0, 0, 175.1), App.Rotation())
sketch18.addGeometry([
    Part.LineSegment(App.Vector(137.45, 137.55, 0), App.Vector(137.45, 137.45, 0)),
    Part.LineSegment(App.Vector(137.45, 137.45, 0), App.Vector(137.55, 137.45, 0)),
    Part.LineSegment(App.Vector(137.55, 137.45, 0), App.Vector(137.55, 137.55, 0)),
    Part.LineSegment(App.Vector(137.55, 137.55, 0), App.Vector(137.45, 137.55, 0)),
], False)
sketch18.addConstraint([
    Sketcher.Constraint("Coincident", 0, 2, 1, 1),
    Sketcher.Constraint("Coincident", 1, 2, 2, 1),
    Sketcher.Constraint("Coincident", 2, 2, 3, 1),
    Sketcher.Constraint("Coincident", 3, 2, 0, 1),
    Sketcher.Constraint("Vertical", 0),
    Sketcher.Constraint("Horizontal", 1),
    Sketcher.Constraint("Vertical", 2),
    Sketcher.Constraint("Horizontal", 3),
    Sketcher.Constraint("Equal", 3, 0),
    Sketcher.Constraint("DistanceX", 1, 1, 1, 2, 0.1),
    Sketcher.Constraint("DistanceX", -1, 1, 0, 2, 137.45),
    Sketcher.Constraint("DistanceY", -1, 1, 0, 2, 137.45),
])
sketch18.setExpression("Constraints[9]", "Params.sketch18_width")

additiveloft6 = doc.addObject("PartDesign::AdditiveLoft", "AdditiveLoft005")
body15.addObject(additiveloft6)
additiveloft6.Profile = sketch17
additiveloft6.Sections = [sketch18]
body16 = doc.addObject("PartDesign::Body", "Body015")
doc.recompute()

body15.Placement = App.Placement(App.Vector(0, 0, -6), App.Rotation(App.Vector(0, 0, 1), 0))
boolean12 = doc.addObject("PartDesign::Boolean", "Boolean011")
body16.addObject(boolean12)
boolean12.Type = "Fuse"
boolean12.addObjects([body15])
doc.recompute()

boolean13 = doc.addObject("PartDesign::Boolean", "Boolean012")
body16.addObject(boolean13)
boolean13.Type = "Common"
boolean13.addObjects([body14])
body17 = doc.addObject("PartDesign::Body", "Body016")

# Sketch on XY plane
sketch19 = doc.addObject("Sketcher::SketchObject", "Sketch018")
body17.addObject(sketch19)
sketch19.AttachmentSupport = (doc.getObject("XY_Plane016"), [""])
sketch19.MapMode = "FlatFace"
sketch19.addGeometry([
    Part.LineSegment(App.Vector(0, 275, 0), App.Vector(0, 0, 0)),
    Part.LineSegment(App.Vector(0, 0, 0), App.Vector(275, 0, 0)),
    Part.LineSegment(App.Vector(275, 0, 0), App.Vector(275, 275, 0)),
    Part.LineSegment(App.Vector(275, 275, 0), App.Vector(0, 275, 0)),
], False)
sketch19.addConstraint([
    Sketcher.Constraint("Coincident", 0, 2, 1, 1),
    Sketcher.Constraint("Coincident", 1, 2, 2, 1),
    Sketcher.Constraint("Coincident", 2, 2, 3, 1),
    Sketcher.Constraint("Coincident", 3, 2, 0, 1),
    Sketcher.Constraint("Vertical", 0),
    Sketcher.Constraint("Horizontal", 1),
    Sketcher.Constraint("Vertical", 2),
    Sketcher.Constraint("Horizontal", 3),
    Sketcher.Constraint("Coincident", 0, 2, -1, 1),
    Sketcher.Constraint("Equal", 3, 0),
    Sketcher.Constraint("DistanceX", 1, 1, 1, 2, 275.0),
])
sketch19.setExpression("Constraints[10]", "Params.sketch19_width")

# Sketch on XY plane
sketch20 = doc.addObject("Sketcher::SketchObject", "Sketch019")
body17.addObject(sketch20)
sketch20.AttachmentSupport = (doc.getObject("XY_Plane016"), [""])
sketch20.MapMode = "FlatFace"
sketch20.AttachmentOffset = App.Placement(App.Vector(0, 0, 175.1), App.Rotation())
sketch20.addGeometry([
    Part.LineSegment(App.Vector(137.45, 137.55, 0), App.Vector(137.45, 137.45, 0)),
    Part.LineSegment(App.Vector(137.45, 137.45, 0), App.Vector(137.55, 137.45, 0)),
    Part.LineSegment(App.Vector(137.55, 137.45, 0), App.Vector(137.55, 137.55, 0)),
    Part.LineSegment(App.Vector(137.55, 137.55, 0), App.Vector(137.45, 137.55, 0)),
], False)
sketch20.addConstraint([
    Sketcher.Constraint("Coincident", 0, 2, 1, 1),
    Sketcher.Constraint("Coincident", 1, 2, 2, 1),
    Sketcher.Constraint("Coincident", 2, 2, 3, 1),
    Sketcher.Constraint("Coincident", 3, 2, 0, 1),
    Sketcher.Constraint("Vertical", 0),
    Sketcher.Constraint("Horizontal", 1),
    Sketcher.Constraint("Vertical", 2),
    Sketcher.Constraint("Horizontal", 3),
    Sketcher.Constraint("Equal", 3, 0),
    Sketcher.Constraint("DistanceX", 1, 1, 1, 2, 0.1),
    Sketcher.Constraint("DistanceX", -1, 1, 0, 2, 137.45),
    Sketcher.Constraint("DistanceY", -1, 1, 0, 2, 137.45),
])
sketch20.setExpression("Constraints[9]", "Params.sketch20_width")

additiveloft7 = doc.addObject("PartDesign::AdditiveLoft", "AdditiveLoft006")
body17.addObject(additiveloft7)
additiveloft7.Profile = sketch19
additiveloft7.Sections = [sketch20]
body18 = doc.addObject("PartDesign::Body", "Body017")

# Sketch on XY plane
sketch21 = doc.addObject("Sketcher::SketchObject", "Sketch020")
body18.addObject(sketch21)
sketch21.AttachmentSupport = (doc.getObject("XY_Plane017"), [""])
sketch21.MapMode = "FlatFace"
sketch21.AttachmentOffset = App.Placement(App.Vector(0, 0, 47), App.Rotation())
sketch21.addGeometry([
    Part.LineSegment(App.Vector(0, 275, 0), App.Vector(0, 0, 0)),
    Part.LineSegment(App.Vector(0, 0, 0), App.Vector(275, 0, 0)),
    Part.LineSegment(App.Vector(275, 0, 0), App.Vector(275, 275, 0)),
    Part.LineSegment(App.Vector(275, 275, 0), App.Vector(0, 275, 0)),
], False)
sketch21.addConstraint([
    Sketcher.Constraint("Coincident", 0, 2, 1, 1),
    Sketcher.Constraint("Coincident", 1, 2, 2, 1),
    Sketcher.Constraint("Coincident", 2, 2, 3, 1),
    Sketcher.Constraint("Coincident", 3, 2, 0, 1),
    Sketcher.Constraint("Vertical", 0),
    Sketcher.Constraint("Horizontal", 1),
    Sketcher.Constraint("Vertical", 2),
    Sketcher.Constraint("Horizontal", 3),
    Sketcher.Constraint("Coincident", 0, 2, -1, 1),
    Sketcher.Constraint("Equal", 3, 0),
    Sketcher.Constraint("DistanceX", 1, 1, 1, 2, 275.0),
])
sketch21.setExpression("Constraints[10]", "Params.sketch21_width")
pad7 = doc.addObject("PartDesign::Pad", "Pad006")
body18.addObject(pad7)
pad7.Profile = sketch21
pad7.setExpression("Length", "Params.pad7_length")
doc.recompute()

boolean14 = doc.addObject("PartDesign::Boolean", "Boolean013")
body18.addObject(boolean14)
boolean14.Type = "Common"
boolean14.addObjects([body17])
doc.recompute()

boolean15 = doc.addObject("PartDesign::Boolean", "Boolean014")
body18.addObject(boolean15)
boolean15.Type = "Cut"
boolean15.addObjects([body16])
doc.recompute()

boolean16 = doc.addObject("PartDesign::Boolean", "Boolean015")
body18.addObject(boolean16)
boolean16.Type = "Cut"
boolean16.addObjects([body13])
doc.recompute()

boolean17 = doc.addObject("PartDesign::Boolean", "Boolean016")
body18.addObject(boolean17)
boolean17.Type = "Common"
boolean17.addObjects([body2])

doc.recompute()
